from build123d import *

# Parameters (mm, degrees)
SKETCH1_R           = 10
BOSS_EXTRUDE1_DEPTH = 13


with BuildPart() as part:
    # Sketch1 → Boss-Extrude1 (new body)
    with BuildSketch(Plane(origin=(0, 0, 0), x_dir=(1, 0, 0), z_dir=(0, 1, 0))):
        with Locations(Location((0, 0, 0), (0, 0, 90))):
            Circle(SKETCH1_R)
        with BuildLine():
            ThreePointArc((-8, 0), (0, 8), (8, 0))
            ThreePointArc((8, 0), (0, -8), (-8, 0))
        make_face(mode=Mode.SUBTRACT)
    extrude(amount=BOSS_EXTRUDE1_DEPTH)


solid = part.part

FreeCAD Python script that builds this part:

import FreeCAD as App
import Part
import Sketcher
from FreeCAD import Vector
Q = App.Units.Quantity

doc = App.newDocument("Part")
body = doc.addObject("PartDesign::Body", "Body")

sketch1 = body.newObject("Sketcher::SketchObject", "Sketch")
sketch1.AttachmentSupport = (doc.getObject("XZ_Plane"), [""])
sketch1.MapMode = "FlatFace"
sketch1.addGeometry([
    Part.Circle(Vector(0, 0, 0), Vector(0, 0, 1), 10),
    Part.Circle(Vector(0, 0, 0), Vector(0, 0, 1), 8),
], False)
sketch1.addConstraint([
    Sketcher.Constraint("Coincident", 0, 3, -1, 1),
    Sketcher.Constraint("Coincident", 1, 3, -1, 1),
    Sketcher.Constraint("Diameter", 0, Q("20 mm")),
    Sketcher.Constraint("Diameter", 1, Q("16 mm")),
])
pad1 = body.newObject("PartDesign::Pad", "Pad")
pad1.Profile = sketch1
pad1.Length = 13
pad1.Reversed = True

doc.recompute()
